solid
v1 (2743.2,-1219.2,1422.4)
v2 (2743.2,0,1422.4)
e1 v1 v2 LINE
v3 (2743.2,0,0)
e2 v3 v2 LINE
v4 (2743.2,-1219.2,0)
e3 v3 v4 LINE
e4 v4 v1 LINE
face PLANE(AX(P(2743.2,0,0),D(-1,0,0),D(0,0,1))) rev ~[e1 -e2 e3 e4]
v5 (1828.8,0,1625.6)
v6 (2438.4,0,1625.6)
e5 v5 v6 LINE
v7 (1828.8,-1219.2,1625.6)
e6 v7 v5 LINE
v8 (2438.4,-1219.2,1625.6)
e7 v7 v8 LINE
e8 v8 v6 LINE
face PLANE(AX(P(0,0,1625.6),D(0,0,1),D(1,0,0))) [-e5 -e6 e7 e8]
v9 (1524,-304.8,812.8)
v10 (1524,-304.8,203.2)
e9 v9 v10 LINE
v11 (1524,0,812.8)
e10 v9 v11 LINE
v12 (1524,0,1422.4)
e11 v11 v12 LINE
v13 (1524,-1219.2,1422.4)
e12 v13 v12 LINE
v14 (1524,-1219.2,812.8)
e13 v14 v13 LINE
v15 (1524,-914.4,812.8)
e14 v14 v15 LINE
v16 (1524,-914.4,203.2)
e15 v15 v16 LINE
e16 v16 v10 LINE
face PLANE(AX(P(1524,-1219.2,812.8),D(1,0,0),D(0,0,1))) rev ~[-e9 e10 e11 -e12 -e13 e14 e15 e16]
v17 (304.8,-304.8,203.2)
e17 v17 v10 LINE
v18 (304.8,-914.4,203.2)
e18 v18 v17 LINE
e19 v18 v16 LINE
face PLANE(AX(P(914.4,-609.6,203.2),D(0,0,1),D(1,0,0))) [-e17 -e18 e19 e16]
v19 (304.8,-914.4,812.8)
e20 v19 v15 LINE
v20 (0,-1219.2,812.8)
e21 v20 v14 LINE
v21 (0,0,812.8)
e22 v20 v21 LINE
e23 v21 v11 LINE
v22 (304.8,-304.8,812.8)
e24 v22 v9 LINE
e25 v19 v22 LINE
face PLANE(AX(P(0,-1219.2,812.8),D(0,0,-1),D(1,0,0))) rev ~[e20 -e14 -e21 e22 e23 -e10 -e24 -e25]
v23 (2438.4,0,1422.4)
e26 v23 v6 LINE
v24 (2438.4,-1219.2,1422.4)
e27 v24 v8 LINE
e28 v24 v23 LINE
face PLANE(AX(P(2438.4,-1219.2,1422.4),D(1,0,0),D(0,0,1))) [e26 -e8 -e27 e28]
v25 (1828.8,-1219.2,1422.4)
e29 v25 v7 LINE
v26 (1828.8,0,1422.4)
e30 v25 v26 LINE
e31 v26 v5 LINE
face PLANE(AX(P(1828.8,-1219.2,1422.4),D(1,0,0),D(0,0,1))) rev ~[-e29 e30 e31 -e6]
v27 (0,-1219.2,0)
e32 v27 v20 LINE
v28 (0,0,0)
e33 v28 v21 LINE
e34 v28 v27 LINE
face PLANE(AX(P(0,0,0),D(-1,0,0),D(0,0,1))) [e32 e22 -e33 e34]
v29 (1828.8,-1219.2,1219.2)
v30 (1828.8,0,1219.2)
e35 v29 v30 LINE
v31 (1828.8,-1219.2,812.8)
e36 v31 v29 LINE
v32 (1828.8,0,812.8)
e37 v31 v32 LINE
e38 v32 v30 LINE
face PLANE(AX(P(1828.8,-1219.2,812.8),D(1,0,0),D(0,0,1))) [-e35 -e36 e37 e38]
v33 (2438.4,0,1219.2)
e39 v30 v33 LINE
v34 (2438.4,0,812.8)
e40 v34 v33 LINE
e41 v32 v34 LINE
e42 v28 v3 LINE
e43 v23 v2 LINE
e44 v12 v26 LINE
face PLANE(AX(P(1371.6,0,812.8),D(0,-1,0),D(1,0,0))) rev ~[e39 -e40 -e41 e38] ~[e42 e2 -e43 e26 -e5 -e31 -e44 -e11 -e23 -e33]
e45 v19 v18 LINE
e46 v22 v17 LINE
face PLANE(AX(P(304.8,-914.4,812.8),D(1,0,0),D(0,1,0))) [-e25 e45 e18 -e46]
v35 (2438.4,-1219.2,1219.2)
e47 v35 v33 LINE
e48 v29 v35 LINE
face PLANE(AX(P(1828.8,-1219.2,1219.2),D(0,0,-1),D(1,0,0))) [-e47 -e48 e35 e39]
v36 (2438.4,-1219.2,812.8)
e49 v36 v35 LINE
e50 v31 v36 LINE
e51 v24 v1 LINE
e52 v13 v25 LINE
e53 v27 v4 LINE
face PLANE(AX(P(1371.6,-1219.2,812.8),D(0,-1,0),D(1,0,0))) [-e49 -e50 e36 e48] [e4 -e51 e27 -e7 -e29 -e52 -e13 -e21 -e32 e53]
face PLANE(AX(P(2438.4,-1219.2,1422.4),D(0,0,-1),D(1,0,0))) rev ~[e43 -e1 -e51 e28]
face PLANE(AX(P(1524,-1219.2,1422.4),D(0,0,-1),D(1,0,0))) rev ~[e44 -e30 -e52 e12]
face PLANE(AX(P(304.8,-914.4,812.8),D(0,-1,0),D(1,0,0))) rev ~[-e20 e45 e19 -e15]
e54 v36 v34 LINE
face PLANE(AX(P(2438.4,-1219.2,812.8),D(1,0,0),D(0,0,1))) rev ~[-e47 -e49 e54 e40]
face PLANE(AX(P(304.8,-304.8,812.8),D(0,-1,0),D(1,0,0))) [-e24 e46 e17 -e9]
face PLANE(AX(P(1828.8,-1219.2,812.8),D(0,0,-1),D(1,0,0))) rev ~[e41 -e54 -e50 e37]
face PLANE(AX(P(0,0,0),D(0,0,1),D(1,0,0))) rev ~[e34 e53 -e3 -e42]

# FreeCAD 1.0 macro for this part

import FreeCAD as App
import Part
import Sketcher
from FreeCAD import Vector
Q = App.Units.Quantity


def add_polygon(sketch, points):
    """Adds a closed chain of lines whose ends are joined by coincident constraints."""
    first, n = sketch.GeometryCount, len(points)
    for a, b in zip(points, points[1:] + points[:1]):
        sketch.addGeometry(Part.LineSegment(App.Vector(*a, 0), App.Vector(*b, 0)), False)
    for i in range(n):
        sketch.addConstraint(Sketcher.Constraint("Coincident", first + i, 2, first + (i + 1) % n, 1))

doc = App.newDocument("Part")
body = doc.addObject("PartDesign::Body", "Body")

# Sketch on XZ plane
sketch1 = doc.addObject("Sketcher::SketchObject", "Sketch")
body.addObject(sketch1)
sketch1.AttachmentSupport = (doc.XZ_Plane, [""])
sketch1.MapMode = "FlatFace"
add_polygon(sketch1, [(0, 1625.6), (0, 0), (2743.2, 0), (2743.2, 1625.6)])  # lines 0-3
sketch1.addConstraint(Sketcher.Constraint("Vertical", 0))
sketch1.addConstraint(Sketcher.Constraint("Horizontal", 1))
sketch1.addConstraint(Sketcher.Constraint("Vertical", 2))
sketch1.addConstraint(Sketcher.Constraint("Horizontal", 3))
sketch1.addConstraint(Sketcher.Constraint("Coincident", 0, 2, -1, 1))
sketch1.addConstraint(Sketcher.Constraint("DistanceX", 1, 1, 1, 2, Q("108 in")))
sketch1.addConstraint(Sketcher.Constraint("DistanceY", 0, 2, 0, 1, Q("64 in")))
pad1 = doc.addObject("PartDesign::Pad", "Pad")
body.addObject(pad1)
pad1.Profile = sketch1
pad1.Length = Q("48 in")

# Sketch on XZ plane
sketch2 = doc.addObject("Sketcher::SketchObject", "Sketch001")
body.addObject(sketch2)
sketch2.AttachmentSupport = (doc.XZ_Plane, [""])
sketch2.MapMode = "FlatFace"
sketch2.AttachmentOffset = App.Placement(Vector(0, 0, 48 * 25.4), App.Rotation())
add_polygon(sketch2, [(2438.4, 1625.6), (2438.4, 1422.4), (2743.2, 1422.4), (2743.2, 1625.6)])  # lines 0-3
sketch2.addConstraint(Sketcher.Constraint("Vertical", 0))
sketch2.addConstraint(Sketcher.Constraint("Horizontal", 1))
sketch2.addConstraint(Sketcher.Constraint("Vertical", 2))
sketch2.addConstraint(Sketcher.Constraint("Horizontal", 3))
sketch2.addConstraint(Sketcher.Constraint("DistanceX", 1, 1, 1, 2, Q("12 in")))
sketch2.addConstraint(Sketcher.Constraint("DistanceY", 0, 2, 0, 1, Q("8 in")))
sketch2.addConstraint(Sketcher.Constraint("DistanceX", -1, 1, 0, 2, Q("96 in")))
sketch2.addConstraint(Sketcher.Constraint("DistanceY", -1, 1, 0, 2, Q("56 in")))
pocket1 = doc.addObject("PartDesign::Pocket", "Pocket")
body.addObject(pocket1)
pocket1.Profile = sketch2
pocket1.Type = "ThroughAll"

# Sketch on XZ plane
sketch3 = doc.addObject("Sketcher::SketchObject", "Sketch002")
body.addObject(sketch3)
sketch3.AttachmentSupport = (doc.XZ_Plane, [""])
sketch3.MapMode = "FlatFace"
sketch3.AttachmentOffset = App.Placement(Vector(0, 0, 48 * 25.4), App.Rotation())
add_polygon(sketch3, [(0, 1625.6), (0, 812.8), (1524, 812.8), (1524, 1625.6)])  # lines 0-3
sketch3.addConstraint(Sketcher.Constraint("Vertical", 0))
sketch3.addConstraint(Sketcher.Constraint("Horizontal", 1))
sketch3.addConstraint(Sketcher.Constraint("Vertical", 2))
sketch3.addConstraint(Sketcher.Constraint("Horizontal", 3))
sketch3.addConstraint(Sketcher.Constraint("PointOnObject", 0, 2, -2))
sketch3.addConstraint(Sketcher.Constraint("DistanceX", 1, 1, 1, 2, Q("60 in")))
sketch3.addConstraint(Sketcher.Constraint("DistanceY", 0, 2, 0, 1, Q("32 in")))
sketch3.addConstraint(Sketcher.Constraint("DistanceY", -1, 1, 0, 2, Q("32 in")))
pocket2 = doc.addObject("PartDesign::Pocket", "Pocket001")
body.addObject(pocket2)
pocket2.Profile = sketch3
pocket2.Type = "ThroughAll"

# Sketch on XZ plane
sketch4 = doc.addObject("Sketcher::SketchObject", "Sketch003")
body.addObject(sketch4)
sketch4.AttachmentSupport = (doc.XZ_Plane, [""])
sketch4.MapMode = "FlatFace"
sketch4.AttachmentOffset = App.Placement(Vector(0, 0, 48 * 25.4), App.Rotation())
add_polygon(sketch4, [(1524, 1625.6), (1524, 1422.4), (1828.8, 1422.4), (1828.8, 1625.6)])  # lines 0-3
sketch4.addConstraint(Sketcher.Constraint("Vertical", 0))
sketch4.addConstraint(Sketcher.Constraint("Horizontal", 1))
sketch4.addConstraint(Sketcher.Constraint("Vertical", 2))
sketch4.addConstraint(Sketcher.Constraint("Horizontal", 3))
sketch4.addConstraint(Sketcher.Constraint("DistanceX", 1, 1, 1, 2, Q("12 in")))
sketch4.addConstraint(Sketcher.Constraint("DistanceY", 0, 2, 0, 1, Q("8 in")))
sketch4.addConstraint(Sketcher.Constraint("DistanceX", -1, 1, 0, 2, Q("60 in")))
sketch4.addConstraint(Sketcher.Constraint("DistanceY", -1, 1, 0, 2, Q("56 in")))
pocket3 = doc.addObject("PartDesign::Pocket", "Pocket002")
body.addObject(pocket3)
pocket3.Profile = sketch4
pocket3.Type = "ThroughAll"

# Sketch on XZ plane
sketch5 = doc.addObject("Sketcher::SketchObject", "Sketch004")
body.addObject(sketch5)
sketch5.AttachmentSupport = (doc.XZ_Plane, [""])
sketch5.MapMode = "FlatFace"
sketch5.AttachmentOffset = App.Placement(Vector(0, 0, 48 * 25.4), App.Rotation())
add_polygon(sketch5, [(1828.8, 1219.2), (1828.8, 812.8), (2438.4, 812.8), (2438.4, 1219.2)])  # lines 0-3
sketch5.addConstraint(Sketcher.Constraint("Vertical", 0))
sketch5.addConstraint(Sketcher.Constraint("Horizontal", 1))
sketch5.addConstraint(Sketcher.Constraint("Vertical", 2))
sketch5.addConstraint(Sketcher.Constraint("Horizontal", 3))
sketch5.addConstraint(Sketcher.Constraint("DistanceX", 1, 1, 1, 2, Q("24 in")))
sketch5.addConstraint(Sketcher.Constraint("DistanceY", 0, 2, 0, 1, Q("16 in")))
sketch5.addConstraint(Sketcher.Constraint("DistanceX", -1, 1, 0, 2, Q("72 in")))
sketch5.addConstraint(Sketcher.Constraint("DistanceY", -1, 1, 0, 2, Q("32 in")))
pocket4 = doc.addObject("PartDesign::Pocket", "Pocket003")
body.addObject(pocket4)
pocket4.Profile = sketch5
pocket4.Type = "ThroughAll"

# Sketch on XY plane
sketch6 = doc.addObject("Sketcher::SketchObject", "Sketch005")
body.addObject(sketch6)
sketch6.AttachmentSupport = (doc.XY_Plane, [""])
sketch6.MapMode = "FlatFace"
sketch6.AttachmentOffset = App.Placement(Vector(0, 0, 32 * 25.4), App.Rotation())
add_polygon(sketch6, [(304.8, -304.8), (304.8, -914.4), (1524, -914.4), (1524, -304.8)])  # lines 0-3
sketch6.addConstraint(Sketcher.Constraint("Vertical", 0))
sketch6.addConstraint(Sketcher.Constraint("Horizontal", 1))
sketch6.addConstraint(Sketcher.Constraint("Vertical", 2))
sketch6.addConstraint(Sketcher.Constraint("Horizontal", 3))
sketch6.addConstraint(Sketcher.Constraint("DistanceX", 1, 1, 1, 2, Q("48 in")))
sketch6.addConstraint(Sketcher.Constraint("DistanceY", 0, 2, 0, 1, Q("24 in")))
sketch6.addConstraint(Sketcher.Constraint("DistanceX", -1, 1, 0, 2, Q("12 in")))
sketch6.addConstraint(Sketcher.Constraint("DistanceY", 0, 2, -1, 1, Q("36 in")))
pocket5 = doc.addObject("PartDesign::Pocket", "Pocket004")
body.addObject(pocket5)
pocket5.Profile = sketch6
pocket5.Length = Q("24 in")

doc.recompute()
